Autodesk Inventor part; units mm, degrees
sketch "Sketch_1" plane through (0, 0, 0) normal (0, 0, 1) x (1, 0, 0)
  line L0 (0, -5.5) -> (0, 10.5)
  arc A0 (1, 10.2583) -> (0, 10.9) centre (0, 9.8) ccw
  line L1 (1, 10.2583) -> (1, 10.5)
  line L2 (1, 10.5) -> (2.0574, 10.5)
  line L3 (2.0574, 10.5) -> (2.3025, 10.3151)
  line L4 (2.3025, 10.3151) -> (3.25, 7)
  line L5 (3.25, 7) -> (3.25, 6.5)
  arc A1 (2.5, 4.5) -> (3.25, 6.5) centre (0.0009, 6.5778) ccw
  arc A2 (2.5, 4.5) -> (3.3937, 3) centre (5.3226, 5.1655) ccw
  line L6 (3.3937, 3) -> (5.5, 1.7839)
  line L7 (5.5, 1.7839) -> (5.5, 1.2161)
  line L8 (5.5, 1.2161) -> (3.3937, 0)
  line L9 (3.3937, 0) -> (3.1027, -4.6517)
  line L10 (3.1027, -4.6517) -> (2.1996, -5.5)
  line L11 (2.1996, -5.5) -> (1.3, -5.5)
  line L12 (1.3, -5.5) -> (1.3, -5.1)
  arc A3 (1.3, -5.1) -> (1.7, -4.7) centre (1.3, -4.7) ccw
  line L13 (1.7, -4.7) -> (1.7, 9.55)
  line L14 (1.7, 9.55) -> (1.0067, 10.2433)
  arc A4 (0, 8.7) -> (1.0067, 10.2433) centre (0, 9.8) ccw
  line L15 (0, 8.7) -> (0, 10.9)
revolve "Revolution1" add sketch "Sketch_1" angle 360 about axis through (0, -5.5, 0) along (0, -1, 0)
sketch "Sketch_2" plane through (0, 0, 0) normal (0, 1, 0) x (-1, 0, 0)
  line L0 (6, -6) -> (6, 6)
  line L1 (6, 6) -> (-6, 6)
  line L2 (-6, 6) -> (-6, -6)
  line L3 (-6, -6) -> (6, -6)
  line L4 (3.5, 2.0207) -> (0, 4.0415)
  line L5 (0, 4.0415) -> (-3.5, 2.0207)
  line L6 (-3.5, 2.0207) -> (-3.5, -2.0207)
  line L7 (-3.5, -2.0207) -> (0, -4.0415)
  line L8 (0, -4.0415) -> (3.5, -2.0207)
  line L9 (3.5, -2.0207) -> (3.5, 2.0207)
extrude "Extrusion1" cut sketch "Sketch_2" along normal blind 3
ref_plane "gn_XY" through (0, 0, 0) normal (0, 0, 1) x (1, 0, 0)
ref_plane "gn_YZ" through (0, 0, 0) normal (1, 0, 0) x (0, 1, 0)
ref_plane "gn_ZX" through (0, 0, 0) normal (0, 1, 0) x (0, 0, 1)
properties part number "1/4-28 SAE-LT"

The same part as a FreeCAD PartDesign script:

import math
import FreeCAD as App
import Part
import Sketcher
Q = App.Units.Quantity


def add_polygon(sketch, points):
    """Adds a closed chain of lines whose ends are joined by coincident constraints."""
    first, n = sketch.GeometryCount, len(points)
    for a, b in zip(points, points[1:] + points[:1]):
        sketch.addGeometry(Part.LineSegment(App.Vector(*a, 0), App.Vector(*b, 0)), False)
    for i in range(n):
        sketch.addConstraint(Sketcher.Constraint("Coincident", first + i, 2, first + (i + 1) % n, 1))

doc = App.newDocument("Part")
body = doc.addObject("PartDesign::Body", "Body")

sketch1 = doc.addObject("Sketcher::SketchObject", "Sketch")
body.addObject(sketch1)
sketch1.AttachmentSupport = (doc.XY_Plane, [""])
sketch1.MapMode = "FlatFace"
sketch1.addGeometry(Part.LineSegment(App.Vector(0, 10.9, 0), App.Vector(0, 8.7, 0)), False)
sketch1.addGeometry(Part.ArcOfCircle(Part.Circle(App.Vector(0, 9.8, 0), App.Vector(0, 0, 1), 1.1), math.radians(-90), math.radians(24)), False)
sketch1.addGeometry(Part.LineSegment(App.Vector(1.01, 10.24, 0), App.Vector(1.7, 9.55, 0)), False)
sketch1.addGeometry(Part.LineSegment(App.Vector(1.7, 9.55, 0), App.Vector(1.7, -4.7, 0)), False)
sketch1.addGeometry(Part.ArcOfCircle(Part.Circle(App.Vector(1.3, -4.7, 0), App.Vector(0, 0, 1), 0.4), math.radians(-90), math.radians(0)), False)
sketch1.addGeometry(Part.LineSegment(App.Vector(1.3, -5.1, 0), App.Vector(1.3, -5.5, 0)), False)
sketch1.addGeometry(Part.LineSegment(App.Vector(1.3, -5.5, 0), App.Vector(2.2, -5.5, 0)), False)
sketch1.addGeometry(Part.LineSegment(App.Vector(2.2, -5.5, 0), App.Vector(3.1, -4.65, 0)), False)
sketch1.addGeometry(Part.LineSegment(App.Vector(3.1, -4.65, 0), App.Vector(3.39, 0, 0)), False)
sketch1.addGeometry(Part.LineSegment(App.Vector(3.39, 0, 0), App.Vector(5.5, 1.22, 0)), False)
sketch1.addGeometry(Part.LineSegment(App.Vector(5.5, 1.22, 0), App.Vector(5.5, 1.78, 0)), False)
sketch1.addGeometry(Part.LineSegment(App.Vector(5.5, 1.78, 0), App.Vector(3.39, 3, 0)), False)
sketch1.addGeometry(Part.ArcOfCircle(Part.Circle(App.Vector(5.32, 5.17, 0), App.Vector(0, 0, 1), 2.9), math.radians(-167), math.radians(-132)), False)
sketch1.addGeometry(Part.ArcOfCircle(Part.Circle(App.Vector(0, 6.58, 0), App.Vector(0, 0, 1), 3.25), math.radians(-40), math.radians(-1)), False)
sketch1.addGeometry(Part.LineSegment(App.Vector(3.25, 6.5, 0), App.Vector(3.25, 7, 0)), False)
sketch1.addGeometry(Part.LineSegment(App.Vector(3.25, 7, 0), App.Vector(2.3, 10.32, 0)), False)
sketch1.addGeometry(Part.LineSegment(App.Vector(2.3, 10.32, 0), App.Vector(2.06, 10.5, 0)), False)
sketch1.addGeometry(Part.LineSegment(App.Vector(2.06, 10.5, 0), App.Vector(1, 10.5, 0)), False)
sketch1.addGeometry(Part.LineSegment(App.Vector(1, 10.5, 0), App.Vector(1, 10.26, 0)), False)
sketch1.addGeometry(Part.ArcOfCircle(Part.Circle(App.Vector(0, 9.8, 0), App.Vector(0, 0, 1), 1.1), math.radians(25), math.radians(90)), False)
sketch1.addConstraint(Sketcher.Constraint("Coincident", 0, 2, 1, 1))
sketch1.addConstraint(Sketcher.Constraint("Coincident", 1, 2, 2, 1))
sketch1.addConstraint(Sketcher.Constraint("Coincident", 2, 2, 3, 1))
sketch1.addConstraint(Sketcher.Constraint("Tangent", 3, 2, 4, 2))
sketch1.addConstraint(Sketcher.Constraint("Coincident", 4, 1, 5, 1))
sketch1.addConstraint(Sketcher.Constraint("Coincident", 5, 2, 6, 1))
sketch1.addConstraint(Sketcher.Constraint("Coincident", 6, 2, 7, 1))
sketch1.addConstraint(Sketcher.Constraint("Coincident", 7, 2, 8, 1))
sketch1.addConstraint(Sketcher.Constraint("Coincident", 8, 2, 9, 1))
sketch1.addConstraint(Sketcher.Constraint("Coincident", 9, 2, 10, 1))
sketch1.addConstraint(Sketcher.Constraint("Coincident", 10, 2, 11, 1))
sketch1.addConstraint(Sketcher.Constraint("Coincident", 11, 2, 12, 2))
sketch1.addConstraint(Sketcher.Constraint("Coincident", 12, 1, 13, 1))
sketch1.addConstraint(Sketcher.Constraint("Coincident", 13, 2, 14, 1))
sketch1.addConstraint(Sketcher.Constraint("Coincident", 14, 2, 15, 1))
sketch1.addConstraint(Sketcher.Constraint("Coincident", 15, 2, 16, 1))
sketch1.addConstraint(Sketcher.Constraint("Coincident", 16, 2, 17, 1))
sketch1.addConstraint(Sketcher.Constraint("Coincident", 17, 2, 18, 1))
sketch1.addConstraint(Sketcher.Constraint("Coincident", 18, 2, 19, 1))
sketch1.addConstraint(Sketcher.Constraint("Coincident", 19, 2, 0, 1))
sketch1.addConstraint(Sketcher.Constraint("Vertical", 0))
sketch1.addConstraint(Sketcher.Constraint("Vertical", 3))
sketch1.addConstraint(Sketcher.Constraint("Vertical", 5))
sketch1.addConstraint(Sketcher.Constraint("Horizontal", 6))
sketch1.addConstraint(Sketcher.Constraint("Vertical", 10))
sketch1.addConstraint(Sketcher.Constraint("Vertical", 14))
sketch1.addConstraint(Sketcher.Constraint("Horizontal", 17))
sketch1.addConstraint(Sketcher.Constraint("Vertical", 18))
sketch1.addConstraint(Sketcher.Constraint("Coincident", 19, 3, 1, 3))
sketch1.addConstraint(Sketcher.Constraint("Equal", 1, 19))
sketch1.addConstraint(Sketcher.Constraint("PointOnObject", 1, 3, -2))
sketch1.addConstraint(Sketcher.Constraint("PointOnObject", 0, 2, -2))
sketch1.addConstraint(Sketcher.Constraint("PointOnObject", 8, 2, -1))
sketch1.addConstraint(Sketcher.Constraint("Vertical", 8, 2, 11, 2))
sketch1.addConstraint(Sketcher.Constraint("Equal", 9, 11))
sketch1.addConstraint(Sketcher.Constraint("Radius", 1, 1.1))
sketch1.addConstraint(Sketcher.Constraint("Radius", 4, 0.4))
sketch1.addConstraint(Sketcher.Constraint("Radius", 12, 2.9))
sketch1.addConstraint(Sketcher.Constraint("Angle", 2, Q("-45 deg")))
sketch1.addConstraint(Sketcher.Constraint("Angle", 9, Q("30.0006 deg")))
sketch1.addConstraint(Sketcher.Constraint("Radius", 13, 3.25))
sketch1.addConstraint(Sketcher.Constraint("DistanceY", 5, 2, 5, 1, 0.4))
sketch1.addConstraint(Sketcher.Constraint("DistanceY", 14, 1, 14, 2, 0.5))
sketch1.addConstraint(Sketcher.Constraint("DistanceY", -1, 1, 11, 2, 3.0))
sketch1.addConstraint(Sketcher.Constraint("DistanceY", -1, 1, 14, 2, 7.0))
sketch1.addConstraint(Sketcher.Constraint("DistanceX", -1, 1, 17, 2, 1.0))
sketch1.addConstraint(Sketcher.Constraint("DistanceX", 12, 1, 10, 2, 3.0))
sketch1.addConstraint(Sketcher.Constraint("DistanceY", 12, 1, 13, 2, 2.0))
sketch1.addConstraint(Sketcher.Constraint("DistanceY", 3, 2, 3, 1, 14.25))
sketch1.addConstraint(Sketcher.Constraint("DistanceY", -1, 1, 1, 3, 9.8))
sketch1.addConstraint(Sketcher.Constraint("DistanceX", -1, 1, 4, 3, 1.3))
sketch1.addConstraint(Sketcher.Constraint("DistanceY", 4, 3, -1, 1, 4.7))
sketch1.addConstraint(Sketcher.Constraint("DistanceX", -1, 1, 4, 1, 1.3))
sketch1.addConstraint(Sketcher.Constraint("DistanceX", -1, 1, 9, 2, 5.5))
sketch1.addConstraint(Sketcher.Constraint("DistanceY", -1, 1, 16, 2, 10.5))
sketch1.addConstraint(Sketcher.Constraint("Angle", 8, Q("86.4204 deg")))
sketch1.addConstraint(Sketcher.Constraint("Angle", 15, Q("105.9506 deg")))
sketch1.addConstraint(Sketcher.Constraint("Angle", 16, Q("142.9696 deg")))
sketch1.addConstraint(Sketcher.Constraint("DistanceX", -1, 1, 13, 2, 3.25))
sketch1.addConstraint(Sketcher.Constraint("Distance", 7, 1.239))
sketch1.addConstraint(Sketcher.Constraint("Distance", 16, 0.307))
sketch1.addConstraint(Sketcher.Constraint("DistanceX", 6, 1, 6, 2, 0.8996))
sketch1.addConstraint(Sketcher.Constraint("DistanceY", 10, 1, 10, 2, 0.5678))
revolution = doc.addObject("PartDesign::Revolution", "Revolution")
body.addObject(revolution)
revolution.Profile = sketch1
revolution.ReferenceAxis = (sketch1, ["V_Axis"])
revolution.Angle = 360

sketch2 = doc.addObject("Sketcher::SketchObject", "Sketch001")
body.addObject(sketch2)
sketch2.AttachmentSupport = (doc.XZ_Plane, [""])
sketch2.MapMode = "FlatFace"
add_polygon(sketch2, [(6, -6), (-6, -6), (-6, 6), (6, 6)])
add_polygon(sketch2, [(0, 4), (-3.5, 2), (-3.5, -2), (0, -4), (3.5, -2), (3.5, 2)])
sketch2.addConstraint(Sketcher.Constraint("Horizontal", 0))
sketch2.addConstraint(Sketcher.Constraint("Vertical", 1))
sketch2.addConstraint(Sketcher.Constraint("Horizontal", 2))
sketch2.addConstraint(Sketcher.Constraint("Vertical", 3))
sketch2.addConstraint(Sketcher.Constraint("Vertical", 5))
sketch2.addConstraint(Sketcher.Constraint("Vertical", 8))
sketch2.addConstraint(Sketcher.Constraint("Symmetric", 0, 2, 2, 2, -1, 1))
sketch2.addConstraint(Sketcher.Constraint("Symmetric", 4, 2, 7, 2, -1, 1))
sketch2.addConstraint(Sketcher.Constraint("Symmetric", 6, 2, 9, 2, -1, 1))
sketch2.addConstraint(Sketcher.Constraint("PointOnObject", 6, 2, -2))
sketch2.addConstraint(Sketcher.Constraint("Parallel", 6, 9))
sketch2.addConstraint(Sketcher.Constraint("Horizontal", 5, 2, 7, 2))
sketch2.addConstraint(Sketcher.Constraint("Equal", 2, 1))
sketch2.addConstraint(Sketcher.Constraint("DistanceX", 0, 2, 0, 1, 12.0))
sketch2.addConstraint(Sketcher.Constraint("Angle", 4, Q("-149.999 deg")))
sketch2.addConstraint(Sketcher.Constraint("DistanceX", 5, 2, 7, 2, 7.0))
sketch2.addConstraint(Sketcher.Constraint("DistanceY", 5, 2, 5, 1, 4.0414))
pocket1 = doc.addObject("PartDesign::Pocket", "Pocket")
body.addObject(pocket1)
pocket1.Profile = sketch2
pocket1.Length = 3

doc.recompute()
